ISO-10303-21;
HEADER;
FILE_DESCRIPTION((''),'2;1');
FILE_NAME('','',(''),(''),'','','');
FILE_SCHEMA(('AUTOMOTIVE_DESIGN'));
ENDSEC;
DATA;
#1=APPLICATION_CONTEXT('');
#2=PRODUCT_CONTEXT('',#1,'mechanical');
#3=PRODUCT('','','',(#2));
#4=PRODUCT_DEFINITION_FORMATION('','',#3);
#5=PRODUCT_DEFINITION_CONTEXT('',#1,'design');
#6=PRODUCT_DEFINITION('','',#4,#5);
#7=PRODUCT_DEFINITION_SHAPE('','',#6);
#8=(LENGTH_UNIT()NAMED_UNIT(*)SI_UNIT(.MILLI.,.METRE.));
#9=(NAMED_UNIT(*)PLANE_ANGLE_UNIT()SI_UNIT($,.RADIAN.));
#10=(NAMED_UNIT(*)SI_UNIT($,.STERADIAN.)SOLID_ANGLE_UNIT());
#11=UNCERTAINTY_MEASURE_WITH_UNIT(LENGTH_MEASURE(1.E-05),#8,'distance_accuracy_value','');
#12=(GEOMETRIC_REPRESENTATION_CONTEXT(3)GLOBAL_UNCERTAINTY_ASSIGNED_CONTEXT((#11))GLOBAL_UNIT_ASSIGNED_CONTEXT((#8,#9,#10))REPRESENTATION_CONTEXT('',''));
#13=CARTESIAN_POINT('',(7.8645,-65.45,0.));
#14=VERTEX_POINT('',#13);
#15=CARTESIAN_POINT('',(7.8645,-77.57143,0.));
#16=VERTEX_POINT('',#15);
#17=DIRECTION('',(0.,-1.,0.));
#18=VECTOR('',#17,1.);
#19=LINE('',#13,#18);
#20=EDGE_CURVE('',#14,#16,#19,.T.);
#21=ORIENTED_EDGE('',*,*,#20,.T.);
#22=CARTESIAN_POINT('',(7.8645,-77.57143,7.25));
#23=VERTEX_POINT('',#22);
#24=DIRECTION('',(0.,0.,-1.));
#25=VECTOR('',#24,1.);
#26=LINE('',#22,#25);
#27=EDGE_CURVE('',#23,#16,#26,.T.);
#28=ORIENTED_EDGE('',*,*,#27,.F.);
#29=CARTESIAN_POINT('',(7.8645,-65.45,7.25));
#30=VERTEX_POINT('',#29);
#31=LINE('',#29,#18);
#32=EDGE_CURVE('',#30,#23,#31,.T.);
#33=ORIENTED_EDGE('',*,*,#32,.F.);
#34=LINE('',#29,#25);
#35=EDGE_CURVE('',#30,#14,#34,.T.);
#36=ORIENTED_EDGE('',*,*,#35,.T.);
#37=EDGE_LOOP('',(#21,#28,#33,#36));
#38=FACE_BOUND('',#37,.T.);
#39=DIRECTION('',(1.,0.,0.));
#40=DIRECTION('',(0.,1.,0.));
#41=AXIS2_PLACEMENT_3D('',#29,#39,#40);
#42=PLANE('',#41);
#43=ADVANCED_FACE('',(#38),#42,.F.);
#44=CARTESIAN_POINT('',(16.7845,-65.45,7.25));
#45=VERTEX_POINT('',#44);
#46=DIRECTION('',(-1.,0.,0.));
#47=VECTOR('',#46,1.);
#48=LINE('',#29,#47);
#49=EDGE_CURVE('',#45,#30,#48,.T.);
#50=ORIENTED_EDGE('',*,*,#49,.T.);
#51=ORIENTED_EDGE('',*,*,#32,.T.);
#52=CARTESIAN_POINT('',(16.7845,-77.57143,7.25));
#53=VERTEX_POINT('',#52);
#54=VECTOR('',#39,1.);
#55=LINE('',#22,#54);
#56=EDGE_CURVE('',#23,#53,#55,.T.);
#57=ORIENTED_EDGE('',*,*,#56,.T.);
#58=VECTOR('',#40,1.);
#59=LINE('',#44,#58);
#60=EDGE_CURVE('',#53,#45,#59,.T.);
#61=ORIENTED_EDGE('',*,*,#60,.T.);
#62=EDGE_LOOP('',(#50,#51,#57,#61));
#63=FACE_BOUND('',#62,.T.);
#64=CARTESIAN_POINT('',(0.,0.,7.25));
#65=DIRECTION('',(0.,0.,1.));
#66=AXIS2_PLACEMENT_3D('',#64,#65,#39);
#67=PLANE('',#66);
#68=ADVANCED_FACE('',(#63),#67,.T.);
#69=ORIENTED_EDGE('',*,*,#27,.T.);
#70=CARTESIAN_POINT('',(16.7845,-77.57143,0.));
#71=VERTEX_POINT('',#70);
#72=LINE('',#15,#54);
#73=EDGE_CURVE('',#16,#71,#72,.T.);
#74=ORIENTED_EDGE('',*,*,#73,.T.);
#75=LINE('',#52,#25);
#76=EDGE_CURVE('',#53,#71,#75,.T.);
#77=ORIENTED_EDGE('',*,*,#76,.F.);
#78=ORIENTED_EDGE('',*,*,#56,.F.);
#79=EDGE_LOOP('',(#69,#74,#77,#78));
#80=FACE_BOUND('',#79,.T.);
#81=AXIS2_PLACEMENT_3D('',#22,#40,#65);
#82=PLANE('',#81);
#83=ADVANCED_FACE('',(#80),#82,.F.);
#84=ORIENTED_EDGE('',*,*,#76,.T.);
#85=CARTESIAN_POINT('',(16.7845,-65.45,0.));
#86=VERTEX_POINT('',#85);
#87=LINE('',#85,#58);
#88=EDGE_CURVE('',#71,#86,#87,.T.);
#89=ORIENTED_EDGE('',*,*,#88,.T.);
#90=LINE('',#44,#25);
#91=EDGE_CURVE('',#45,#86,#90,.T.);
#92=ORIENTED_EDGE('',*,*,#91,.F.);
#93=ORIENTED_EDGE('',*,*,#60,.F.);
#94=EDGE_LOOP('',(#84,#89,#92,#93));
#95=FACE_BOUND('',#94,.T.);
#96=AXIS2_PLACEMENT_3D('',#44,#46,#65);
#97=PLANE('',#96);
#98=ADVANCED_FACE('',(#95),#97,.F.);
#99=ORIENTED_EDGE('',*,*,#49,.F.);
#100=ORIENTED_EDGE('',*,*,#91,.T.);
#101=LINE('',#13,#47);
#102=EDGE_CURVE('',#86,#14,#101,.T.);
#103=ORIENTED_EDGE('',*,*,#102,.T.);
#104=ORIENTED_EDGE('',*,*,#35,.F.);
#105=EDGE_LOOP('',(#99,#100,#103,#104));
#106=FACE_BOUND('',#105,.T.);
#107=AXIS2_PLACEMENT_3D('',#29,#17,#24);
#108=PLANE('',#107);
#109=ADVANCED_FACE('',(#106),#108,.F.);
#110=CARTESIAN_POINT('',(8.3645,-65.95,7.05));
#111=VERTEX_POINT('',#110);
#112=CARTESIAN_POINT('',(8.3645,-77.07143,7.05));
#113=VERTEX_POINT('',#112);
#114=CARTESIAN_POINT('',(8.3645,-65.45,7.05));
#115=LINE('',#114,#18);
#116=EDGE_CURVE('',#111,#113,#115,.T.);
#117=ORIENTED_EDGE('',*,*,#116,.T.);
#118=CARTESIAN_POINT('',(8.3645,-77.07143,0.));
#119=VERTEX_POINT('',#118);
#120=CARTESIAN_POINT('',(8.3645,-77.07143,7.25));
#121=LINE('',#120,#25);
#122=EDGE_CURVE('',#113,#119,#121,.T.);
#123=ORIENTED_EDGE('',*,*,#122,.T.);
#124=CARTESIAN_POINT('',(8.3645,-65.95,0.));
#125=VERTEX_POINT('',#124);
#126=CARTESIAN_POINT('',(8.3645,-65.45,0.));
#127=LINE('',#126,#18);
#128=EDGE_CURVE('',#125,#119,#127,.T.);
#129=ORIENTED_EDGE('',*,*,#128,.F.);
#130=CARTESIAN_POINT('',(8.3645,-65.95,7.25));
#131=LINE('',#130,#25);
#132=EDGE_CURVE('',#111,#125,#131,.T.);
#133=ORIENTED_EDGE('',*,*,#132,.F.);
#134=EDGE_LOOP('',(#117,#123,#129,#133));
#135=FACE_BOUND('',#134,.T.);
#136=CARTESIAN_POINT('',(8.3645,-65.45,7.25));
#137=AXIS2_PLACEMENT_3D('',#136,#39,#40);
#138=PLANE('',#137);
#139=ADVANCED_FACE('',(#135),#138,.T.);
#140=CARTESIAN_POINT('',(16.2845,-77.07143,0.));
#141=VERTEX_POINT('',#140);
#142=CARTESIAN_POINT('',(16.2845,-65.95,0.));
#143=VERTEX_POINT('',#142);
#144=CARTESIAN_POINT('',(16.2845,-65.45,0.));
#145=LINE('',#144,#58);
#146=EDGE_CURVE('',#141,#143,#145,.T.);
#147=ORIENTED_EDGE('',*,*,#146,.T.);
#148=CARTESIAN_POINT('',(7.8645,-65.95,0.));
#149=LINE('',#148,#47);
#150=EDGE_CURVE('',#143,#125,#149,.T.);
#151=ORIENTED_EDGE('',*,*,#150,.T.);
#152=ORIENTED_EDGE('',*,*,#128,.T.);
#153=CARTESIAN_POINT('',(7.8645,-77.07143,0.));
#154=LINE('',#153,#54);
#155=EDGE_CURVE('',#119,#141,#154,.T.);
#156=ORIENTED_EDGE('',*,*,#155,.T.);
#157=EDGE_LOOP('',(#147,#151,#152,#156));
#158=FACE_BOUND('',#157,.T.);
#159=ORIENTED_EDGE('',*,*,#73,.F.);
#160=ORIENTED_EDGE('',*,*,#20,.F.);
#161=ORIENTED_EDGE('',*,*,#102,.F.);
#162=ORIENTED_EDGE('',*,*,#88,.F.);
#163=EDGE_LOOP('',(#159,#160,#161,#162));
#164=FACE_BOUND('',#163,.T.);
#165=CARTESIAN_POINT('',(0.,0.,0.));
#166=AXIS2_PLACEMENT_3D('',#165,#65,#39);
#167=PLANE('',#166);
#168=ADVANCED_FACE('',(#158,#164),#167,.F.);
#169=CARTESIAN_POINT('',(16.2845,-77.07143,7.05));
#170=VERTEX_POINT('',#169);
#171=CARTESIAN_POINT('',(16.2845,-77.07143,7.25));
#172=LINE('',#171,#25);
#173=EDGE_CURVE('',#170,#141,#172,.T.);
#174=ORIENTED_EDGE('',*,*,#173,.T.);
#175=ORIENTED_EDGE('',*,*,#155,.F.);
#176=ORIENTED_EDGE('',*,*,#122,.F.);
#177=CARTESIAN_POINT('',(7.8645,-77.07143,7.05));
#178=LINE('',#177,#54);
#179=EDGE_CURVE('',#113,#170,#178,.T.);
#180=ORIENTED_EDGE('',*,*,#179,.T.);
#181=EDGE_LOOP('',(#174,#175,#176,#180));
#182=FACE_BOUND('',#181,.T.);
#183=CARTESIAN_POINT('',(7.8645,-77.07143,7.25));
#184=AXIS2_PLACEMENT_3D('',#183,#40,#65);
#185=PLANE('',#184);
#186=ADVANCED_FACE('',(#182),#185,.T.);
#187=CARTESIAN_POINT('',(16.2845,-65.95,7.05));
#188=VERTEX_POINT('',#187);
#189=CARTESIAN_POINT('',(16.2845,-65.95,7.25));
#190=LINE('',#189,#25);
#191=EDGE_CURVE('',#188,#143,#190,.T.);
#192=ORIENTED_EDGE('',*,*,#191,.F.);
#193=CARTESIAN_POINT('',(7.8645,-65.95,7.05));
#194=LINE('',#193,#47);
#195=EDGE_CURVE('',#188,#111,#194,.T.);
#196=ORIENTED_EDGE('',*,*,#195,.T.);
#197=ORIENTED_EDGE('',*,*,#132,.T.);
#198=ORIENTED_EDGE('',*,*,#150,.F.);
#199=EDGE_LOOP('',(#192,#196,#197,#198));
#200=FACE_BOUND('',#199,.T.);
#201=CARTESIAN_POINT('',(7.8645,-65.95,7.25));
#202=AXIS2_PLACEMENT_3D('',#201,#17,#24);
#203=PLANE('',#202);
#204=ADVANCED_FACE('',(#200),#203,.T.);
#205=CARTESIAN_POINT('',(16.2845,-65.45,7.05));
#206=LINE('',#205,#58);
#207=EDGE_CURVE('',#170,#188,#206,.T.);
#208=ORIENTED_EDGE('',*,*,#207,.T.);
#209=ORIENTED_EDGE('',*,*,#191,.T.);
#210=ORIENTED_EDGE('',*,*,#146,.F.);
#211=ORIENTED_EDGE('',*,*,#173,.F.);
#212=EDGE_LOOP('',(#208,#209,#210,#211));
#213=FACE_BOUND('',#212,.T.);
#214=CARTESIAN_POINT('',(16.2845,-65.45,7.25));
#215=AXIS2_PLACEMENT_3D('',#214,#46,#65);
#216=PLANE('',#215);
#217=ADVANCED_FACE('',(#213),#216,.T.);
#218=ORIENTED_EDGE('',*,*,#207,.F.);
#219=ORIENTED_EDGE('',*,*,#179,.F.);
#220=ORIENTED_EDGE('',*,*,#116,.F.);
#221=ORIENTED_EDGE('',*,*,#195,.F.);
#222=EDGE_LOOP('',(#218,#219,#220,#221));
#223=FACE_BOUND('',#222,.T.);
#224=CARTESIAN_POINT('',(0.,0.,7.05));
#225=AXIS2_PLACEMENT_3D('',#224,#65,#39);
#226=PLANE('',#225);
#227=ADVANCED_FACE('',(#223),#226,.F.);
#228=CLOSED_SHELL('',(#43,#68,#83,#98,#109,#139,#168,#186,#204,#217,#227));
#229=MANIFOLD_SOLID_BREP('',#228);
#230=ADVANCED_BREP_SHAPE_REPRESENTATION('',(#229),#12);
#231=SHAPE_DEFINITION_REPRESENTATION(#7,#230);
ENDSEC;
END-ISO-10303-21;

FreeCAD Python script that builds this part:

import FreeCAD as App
import Part
import Sketcher

V = App.Vector
Q = App.Units.Quantity


def faces_at(feature, points):
    """Names of the faces that lie closest to the given points."""
    faces = feature.Shape.Faces
    near = lambda p: min(range(len(faces)), key=lambda i: faces[i].distToShape(Part.Vertex(*p))[0])
    return sorted({f"Face{near(p) + 1}" for p in points})

doc = App.newDocument("Part")
body = doc.addObject("PartDesign::Body", "Body")

sketch1 = body.newObject("Sketcher::SketchObject", "Sketch")
sketch1.AttachmentSupport = (doc.getObject("XY_Plane"), [""])
sketch1.MapMode = "FlatFace"
sketch1.addGeometry([
    Part.LineSegment(V(8, -65, 0), V(8, -78, 0)),
    Part.LineSegment(V(8, -78, 0), V(17, -78, 0)),
    Part.LineSegment(V(17, -78, 0), V(17, -65, 0)),
    Part.LineSegment(V(17, -65, 0), V(8, -65, 0)),
], False)
sketch1.addConstraint([
    Sketcher.Constraint("Coincident", 0, 2, 1, 1),
    Sketcher.Constraint("Coincident", 1, 2, 2, 1),
    Sketcher.Constraint("Coincident", 2, 2, 3, 1),
    Sketcher.Constraint("Coincident", 3, 2, 0, 1),
    Sketcher.Constraint("Vertical", 0),
    Sketcher.Constraint("Horizontal", 1),
    Sketcher.Constraint("Vertical", 2),
    Sketcher.Constraint("Horizontal", 3),
    Sketcher.Constraint("DistanceX", 1, 1, 1, 2, Q("8.92 mm")),
    Sketcher.Constraint("DistanceY", 2, 2, -1, 1, Q("65.45 mm")),
    Sketcher.Constraint("DistanceY", 0, 2, 0, 1, Q("12.12143 mm")),
    Sketcher.Constraint("DistanceX", -1, 1, 0, 2, Q("7.8645 mm")),
])
pad1 = body.newObject("PartDesign::Pad", "Pad")
pad1.Profile = sketch1
pad1.Length = 7.25
doc.recompute()

thickness = body.newObject("PartDesign::Thickness", "Thickness")
thickness.Base = (pad1, faces_at(pad1, [(12.325, -71.511, 0)]))
thickness.Value = 0.5
thickness.Reversed = True
thickness.Join = "Intersection"

sketch2 = body.newObject("Sketcher::SketchObject", "Sketch001")
sketch2.AttachmentSupport = (doc.getObject("XY_Plane"), [""])
sketch2.MapMode = "FlatFace"
sketch2.AttachmentOffset = App.Placement(V(0, 0, 6.75), App.Rotation())
sketch2.addGeometry([
    Part.LineSegment(V(8, -66, 0), V(8, -77, 0)),
    Part.LineSegment(V(8, -77, 0), V(16, -77, 0)),
    Part.LineSegment(V(16, -77, 0), V(16, -66, 0)),
    Part.LineSegment(V(16, -66, 0), V(8, -66, 0)),
], False)
sketch2.addConstraint([
    Sketcher.Constraint("Coincident", 0, 2, 1, 1),
    Sketcher.Constraint("Coincident", 1, 2, 2, 1),
    Sketcher.Constraint("Coincident", 2, 2, 3, 1),
    Sketcher.Constraint("Coincident", 3, 2, 0, 1),
    Sketcher.Constraint("Vertical", 0),
    Sketcher.Constraint("Horizontal", 1),
    Sketcher.Constraint("Vertical", 2),
    Sketcher.Constraint("Horizontal", 3),
    Sketcher.Constraint("DistanceX", 1, 1, 1, 2, Q("7.92 mm")),
    Sketcher.Constraint("DistanceY", 2, 2, -1, 1, Q("65.95 mm")),
    Sketcher.Constraint("DistanceY", 0, 2, 0, 1, Q("11.12143 mm")),
    Sketcher.Constraint("DistanceX", -1, 1, 0, 2, Q("8.3645 mm")),
])
pocket1 = body.newObject("PartDesign::Pocket", "Pocket")
pocket1.Profile = sketch2
pocket1.Length = 0.3
pocket1.Reversed = True

doc.recompute()
